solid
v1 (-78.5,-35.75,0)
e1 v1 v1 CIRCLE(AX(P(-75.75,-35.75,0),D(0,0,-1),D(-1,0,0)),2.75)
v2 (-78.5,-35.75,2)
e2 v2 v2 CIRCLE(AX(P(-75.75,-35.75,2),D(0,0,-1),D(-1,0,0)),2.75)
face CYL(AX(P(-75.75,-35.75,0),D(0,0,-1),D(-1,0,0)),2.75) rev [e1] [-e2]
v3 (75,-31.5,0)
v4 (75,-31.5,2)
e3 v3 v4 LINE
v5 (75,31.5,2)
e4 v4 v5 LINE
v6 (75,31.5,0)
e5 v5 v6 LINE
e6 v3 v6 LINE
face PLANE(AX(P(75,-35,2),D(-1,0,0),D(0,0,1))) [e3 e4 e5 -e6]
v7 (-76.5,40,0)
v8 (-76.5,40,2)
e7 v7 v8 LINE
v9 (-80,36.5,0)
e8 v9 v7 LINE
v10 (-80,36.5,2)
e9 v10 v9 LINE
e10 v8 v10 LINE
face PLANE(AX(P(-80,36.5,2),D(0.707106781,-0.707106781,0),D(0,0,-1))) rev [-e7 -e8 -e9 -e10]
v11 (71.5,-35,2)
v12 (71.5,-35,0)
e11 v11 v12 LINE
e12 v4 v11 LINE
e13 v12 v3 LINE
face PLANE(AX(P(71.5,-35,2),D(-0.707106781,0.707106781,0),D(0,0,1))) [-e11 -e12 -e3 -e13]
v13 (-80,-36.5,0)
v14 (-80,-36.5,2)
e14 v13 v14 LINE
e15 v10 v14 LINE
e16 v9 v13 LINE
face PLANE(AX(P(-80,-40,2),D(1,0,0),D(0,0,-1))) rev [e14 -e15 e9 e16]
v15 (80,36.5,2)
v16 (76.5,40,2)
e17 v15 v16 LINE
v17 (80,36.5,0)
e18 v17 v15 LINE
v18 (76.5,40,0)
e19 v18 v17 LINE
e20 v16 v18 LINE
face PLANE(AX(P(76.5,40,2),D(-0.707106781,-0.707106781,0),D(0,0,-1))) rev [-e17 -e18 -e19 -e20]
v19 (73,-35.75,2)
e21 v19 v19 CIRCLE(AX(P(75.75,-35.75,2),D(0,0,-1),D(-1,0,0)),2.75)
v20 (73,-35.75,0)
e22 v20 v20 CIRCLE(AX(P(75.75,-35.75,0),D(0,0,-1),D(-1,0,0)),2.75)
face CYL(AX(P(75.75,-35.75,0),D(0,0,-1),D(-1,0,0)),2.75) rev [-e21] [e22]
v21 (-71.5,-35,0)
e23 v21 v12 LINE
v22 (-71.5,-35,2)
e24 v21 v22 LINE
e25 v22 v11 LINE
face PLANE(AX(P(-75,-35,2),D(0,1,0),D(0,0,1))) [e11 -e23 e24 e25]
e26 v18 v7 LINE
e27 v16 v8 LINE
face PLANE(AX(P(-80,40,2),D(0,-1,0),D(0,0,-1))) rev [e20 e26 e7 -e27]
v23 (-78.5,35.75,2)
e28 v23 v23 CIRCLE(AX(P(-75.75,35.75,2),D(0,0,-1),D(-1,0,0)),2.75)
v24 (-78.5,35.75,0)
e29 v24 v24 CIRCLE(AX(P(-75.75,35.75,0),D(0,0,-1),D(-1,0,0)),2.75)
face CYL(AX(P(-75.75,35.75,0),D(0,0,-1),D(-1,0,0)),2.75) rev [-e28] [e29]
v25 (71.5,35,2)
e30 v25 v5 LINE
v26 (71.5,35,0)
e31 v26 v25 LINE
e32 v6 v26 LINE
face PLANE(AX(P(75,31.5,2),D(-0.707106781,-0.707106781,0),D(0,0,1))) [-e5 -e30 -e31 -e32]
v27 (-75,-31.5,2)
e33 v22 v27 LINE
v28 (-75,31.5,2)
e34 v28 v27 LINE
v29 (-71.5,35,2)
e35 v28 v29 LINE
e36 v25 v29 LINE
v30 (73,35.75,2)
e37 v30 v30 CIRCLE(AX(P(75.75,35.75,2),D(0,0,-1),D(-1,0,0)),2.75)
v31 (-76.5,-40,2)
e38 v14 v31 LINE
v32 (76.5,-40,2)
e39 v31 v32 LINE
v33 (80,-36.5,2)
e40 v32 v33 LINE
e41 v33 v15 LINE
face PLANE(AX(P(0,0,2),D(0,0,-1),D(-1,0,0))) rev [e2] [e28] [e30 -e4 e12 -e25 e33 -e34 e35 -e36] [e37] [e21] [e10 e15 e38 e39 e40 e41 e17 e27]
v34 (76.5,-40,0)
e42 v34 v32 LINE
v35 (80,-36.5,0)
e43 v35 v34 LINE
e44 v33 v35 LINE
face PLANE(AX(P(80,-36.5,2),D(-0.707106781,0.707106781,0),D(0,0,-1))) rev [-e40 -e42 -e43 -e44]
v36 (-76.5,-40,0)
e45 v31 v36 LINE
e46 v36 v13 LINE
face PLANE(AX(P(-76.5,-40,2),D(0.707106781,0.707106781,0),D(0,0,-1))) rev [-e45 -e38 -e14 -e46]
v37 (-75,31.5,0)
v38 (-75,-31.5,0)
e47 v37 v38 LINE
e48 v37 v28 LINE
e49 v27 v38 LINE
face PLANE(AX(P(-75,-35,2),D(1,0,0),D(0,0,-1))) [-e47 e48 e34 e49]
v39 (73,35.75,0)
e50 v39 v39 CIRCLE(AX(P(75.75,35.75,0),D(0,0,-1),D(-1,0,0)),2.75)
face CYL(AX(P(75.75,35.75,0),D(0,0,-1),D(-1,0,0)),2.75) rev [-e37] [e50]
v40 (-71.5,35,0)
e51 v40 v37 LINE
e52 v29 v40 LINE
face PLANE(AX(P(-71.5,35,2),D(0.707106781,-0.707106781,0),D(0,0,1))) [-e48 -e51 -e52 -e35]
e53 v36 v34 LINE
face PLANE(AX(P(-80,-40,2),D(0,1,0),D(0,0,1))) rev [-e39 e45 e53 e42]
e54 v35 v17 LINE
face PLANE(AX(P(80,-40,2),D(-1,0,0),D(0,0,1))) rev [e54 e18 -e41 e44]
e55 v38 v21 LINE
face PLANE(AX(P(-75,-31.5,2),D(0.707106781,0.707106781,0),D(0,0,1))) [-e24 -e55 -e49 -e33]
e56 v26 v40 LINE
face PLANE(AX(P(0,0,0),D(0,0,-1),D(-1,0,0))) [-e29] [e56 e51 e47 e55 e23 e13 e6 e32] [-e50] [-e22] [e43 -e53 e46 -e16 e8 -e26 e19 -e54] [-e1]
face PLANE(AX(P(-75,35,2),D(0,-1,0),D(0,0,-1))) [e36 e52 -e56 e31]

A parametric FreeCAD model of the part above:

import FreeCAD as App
import Part
import Sketcher
from FreeCAD import Vector


def edges_at(feature, points):
    """Names of the edges that pass closest to the given points."""
    edges = feature.Shape.Edges
    near = lambda p: min(range(len(edges)), key=lambda i: edges[i].distToShape(Part.Vertex(*p))[0])
    return sorted({f"Edge{near(p) + 1}" for p in points})

doc = App.newDocument("Part")
params = doc.addObject("Spreadsheet::Sheet", "Params")
for row, (alias, value) in enumerate([
    ("sketch1_width", "160 mm"),
    ("sketch1_width2", "150 mm"),
    ("sketch1_height", "80 mm"),
    ("sketch1_height2", "70 mm"),
    ("pad1_length", "2 mm"),
    ("chamfer_size", "3.5 mm"),
    ("sketch2_diameter", "5.5 mm"),
    ("hole_diameter", "5.5 mm"),
], start=1):
    params.set(f"A{row}", alias)
    params.set(f"B{row}", "=" + value)
    params.setAlias(f"B{row}", alias)

body = doc.addObject("PartDesign::Body", "Body")

sketch1 = body.newObject("Sketcher::SketchObject", "Sketch")
sketch1.AttachmentSupport = (doc.getObject("XY_Plane"), [""])
sketch1.MapMode = "FlatFace"
sketch1.addGeometry(Part.LineSegment(Vector(-80, 40, 0), Vector(-80, -40, 0)), False)
sketch1.addGeometry(Part.LineSegment(Vector(-80, -40, 0), Vector(80, -40, 0)), False)
sketch1.addGeometry(Part.LineSegment(Vector(80, -40, 0), Vector(80, 40, 0)), False)
sketch1.addGeometry(Part.LineSegment(Vector(80, 40, 0), Vector(-80, 40, 0)), False)
sketch1.addGeometry(Part.LineSegment(Vector(75, -35, 0), Vector(-75, -35, 0)), False)
sketch1.addGeometry(Part.LineSegment(Vector(-75, -35, 0), Vector(-75, 35, 0)), False)
sketch1.addGeometry(Part.LineSegment(Vector(-75, 35, 0), Vector(75, 35, 0)), False)
sketch1.addGeometry(Part.LineSegment(Vector(75, 35, 0), Vector(75, -35, 0)), False)
sketch1.addConstraint(Sketcher.Constraint("Coincident", 0, 2, 1, 1))
sketch1.addConstraint(Sketcher.Constraint("Coincident", 1, 2, 2, 1))
sketch1.addConstraint(Sketcher.Constraint("Coincident", 2, 2, 3, 1))
sketch1.addConstraint(Sketcher.Constraint("Coincident", 3, 2, 0, 1))
sketch1.addConstraint(Sketcher.Constraint("Coincident", 4, 2, 5, 1))
sketch1.addConstraint(Sketcher.Constraint("Coincident", 5, 2, 6, 1))
sketch1.addConstraint(Sketcher.Constraint("Coincident", 6, 2, 7, 1))
sketch1.addConstraint(Sketcher.Constraint("Coincident", 7, 2, 4, 1))
sketch1.addConstraint(Sketcher.Constraint("Vertical", 0))
sketch1.addConstraint(Sketcher.Constraint("Horizontal", 1))
sketch1.addConstraint(Sketcher.Constraint("Vertical", 2))
sketch1.addConstraint(Sketcher.Constraint("Horizontal", 3))
sketch1.addConstraint(Sketcher.Constraint("Horizontal", 4))
sketch1.addConstraint(Sketcher.Constraint("Vertical", 5))
sketch1.addConstraint(Sketcher.Constraint("Horizontal", 6))
sketch1.addConstraint(Sketcher.Constraint("Vertical", 7))
sketch1.addConstraint(Sketcher.Constraint("Symmetric", 0, 2, 2, 2, -1, 1))
sketch1.addConstraint(Sketcher.Constraint("Symmetric", 4, 2, 6, 2, -1, 1))
sketch1.addConstraint(Sketcher.Constraint("DistanceX", 1, 1, 1, 2, 160.0))
sketch1.addConstraint(Sketcher.Constraint("DistanceX", 4, 2, 4, 1, 150.0))
sketch1.addConstraint(Sketcher.Constraint("DistanceY", 0, 2, 0, 1, 80.0))
sketch1.addConstraint(Sketcher.Constraint("DistanceY", 5, 1, 5, 2, 70.0))
sketch1.setExpression("Constraints[18]", "Params.sketch1_width")
sketch1.setExpression("Constraints[19]", "Params.sketch1_width2")
sketch1.setExpression("Constraints[20]", "Params.sketch1_height")
sketch1.setExpression("Constraints[21]", "Params.sketch1_height2")
pad1 = body.newObject("PartDesign::Pad", "Pad")
pad1.Profile = sketch1
pad1.setExpression("Length", "Params.pad1_length")
doc.recompute()

chamfer = body.newObject("PartDesign::Chamfer", "Chamfer")
chamfer.Base = (pad1, edges_at(pad1, [
    (-75, 35, 1),
    (-75, -35, 1),
    (75, -35, 1),
    (75, 35, 1),
    (80, -40, 1),
    (-80, -40, 1),
    (-80, 40, 1),
    (80, 40, 1),
]))
chamfer.setExpression("Size", "Params.chamfer_size")

sketch2 = body.newObject("Sketcher::SketchObject", "Sketch001")
sketch2.AttachmentSupport = (doc.getObject("XY_Plane"), [""])
sketch2.MapMode = "FlatFace"
sketch2.addGeometry(Part.Circle(Vector(0, 0, 0), Vector(0, 0, 1), 2.8), False)
sketch2.addGeometry(Part.Circle(Vector(75.8, 35.8, 0), Vector(0, 0, 1), 2.8), False)
sketch2.addGeometry(Part.Circle(Vector(-75.8, -35.8, 0), Vector(0, 0, 1), 2.8), False)
sketch2.addGeometry(Part.Circle(Vector(-75.8, 35.8, 0), Vector(0, 0, 1), 2.8), False)
sketch2.addGeometry(Part.Circle(Vector(75.8, -35.8, 0), Vector(0, 0, 1), 2.8), False)
sketch2.addConstraint(Sketcher.Constraint("Coincident", 0, 3, -1, 1))
sketch2.addConstraint(Sketcher.Constraint("Equal", 0, 1))
sketch2.addConstraint(Sketcher.Constraint("Equal", 1, 2))
sketch2.addConstraint(Sketcher.Constraint("Equal", 2, 3))
sketch2.addConstraint(Sketcher.Constraint("Equal", 3, 4))
sketch2.addConstraint(Sketcher.Constraint("Symmetric", 1, 3, 2, 3, -1, 1))
sketch2.addConstraint(Sketcher.Constraint("Symmetric", 3, 3, 4, 3, -1, 1))
sketch2.addConstraint(Sketcher.Constraint("Symmetric", 1, 3, 3, 3, -2))
sketch2.addConstraint(Sketcher.Constraint("Diameter", 0, 5.5))
sketch2.addConstraint(Sketcher.Constraint("DistanceX", 2, 3, 1, 3, 151.5))
sketch2.addConstraint(Sketcher.Constraint("DistanceY", 2, 3, 1, 3, 71.5))
sketch2.setExpression("Constraints[8]", "Params.sketch2_diameter")
doc.recompute()
hole = body.newObject("PartDesign::Hole", "Hole")
hole.Profile = sketch2
hole.ThreadType = "None"
hole.setExpression("Diameter", "Params.hole_diameter")
hole.DepthType = "ThroughAll"
hole.Reversed = True

doc.recompute()
